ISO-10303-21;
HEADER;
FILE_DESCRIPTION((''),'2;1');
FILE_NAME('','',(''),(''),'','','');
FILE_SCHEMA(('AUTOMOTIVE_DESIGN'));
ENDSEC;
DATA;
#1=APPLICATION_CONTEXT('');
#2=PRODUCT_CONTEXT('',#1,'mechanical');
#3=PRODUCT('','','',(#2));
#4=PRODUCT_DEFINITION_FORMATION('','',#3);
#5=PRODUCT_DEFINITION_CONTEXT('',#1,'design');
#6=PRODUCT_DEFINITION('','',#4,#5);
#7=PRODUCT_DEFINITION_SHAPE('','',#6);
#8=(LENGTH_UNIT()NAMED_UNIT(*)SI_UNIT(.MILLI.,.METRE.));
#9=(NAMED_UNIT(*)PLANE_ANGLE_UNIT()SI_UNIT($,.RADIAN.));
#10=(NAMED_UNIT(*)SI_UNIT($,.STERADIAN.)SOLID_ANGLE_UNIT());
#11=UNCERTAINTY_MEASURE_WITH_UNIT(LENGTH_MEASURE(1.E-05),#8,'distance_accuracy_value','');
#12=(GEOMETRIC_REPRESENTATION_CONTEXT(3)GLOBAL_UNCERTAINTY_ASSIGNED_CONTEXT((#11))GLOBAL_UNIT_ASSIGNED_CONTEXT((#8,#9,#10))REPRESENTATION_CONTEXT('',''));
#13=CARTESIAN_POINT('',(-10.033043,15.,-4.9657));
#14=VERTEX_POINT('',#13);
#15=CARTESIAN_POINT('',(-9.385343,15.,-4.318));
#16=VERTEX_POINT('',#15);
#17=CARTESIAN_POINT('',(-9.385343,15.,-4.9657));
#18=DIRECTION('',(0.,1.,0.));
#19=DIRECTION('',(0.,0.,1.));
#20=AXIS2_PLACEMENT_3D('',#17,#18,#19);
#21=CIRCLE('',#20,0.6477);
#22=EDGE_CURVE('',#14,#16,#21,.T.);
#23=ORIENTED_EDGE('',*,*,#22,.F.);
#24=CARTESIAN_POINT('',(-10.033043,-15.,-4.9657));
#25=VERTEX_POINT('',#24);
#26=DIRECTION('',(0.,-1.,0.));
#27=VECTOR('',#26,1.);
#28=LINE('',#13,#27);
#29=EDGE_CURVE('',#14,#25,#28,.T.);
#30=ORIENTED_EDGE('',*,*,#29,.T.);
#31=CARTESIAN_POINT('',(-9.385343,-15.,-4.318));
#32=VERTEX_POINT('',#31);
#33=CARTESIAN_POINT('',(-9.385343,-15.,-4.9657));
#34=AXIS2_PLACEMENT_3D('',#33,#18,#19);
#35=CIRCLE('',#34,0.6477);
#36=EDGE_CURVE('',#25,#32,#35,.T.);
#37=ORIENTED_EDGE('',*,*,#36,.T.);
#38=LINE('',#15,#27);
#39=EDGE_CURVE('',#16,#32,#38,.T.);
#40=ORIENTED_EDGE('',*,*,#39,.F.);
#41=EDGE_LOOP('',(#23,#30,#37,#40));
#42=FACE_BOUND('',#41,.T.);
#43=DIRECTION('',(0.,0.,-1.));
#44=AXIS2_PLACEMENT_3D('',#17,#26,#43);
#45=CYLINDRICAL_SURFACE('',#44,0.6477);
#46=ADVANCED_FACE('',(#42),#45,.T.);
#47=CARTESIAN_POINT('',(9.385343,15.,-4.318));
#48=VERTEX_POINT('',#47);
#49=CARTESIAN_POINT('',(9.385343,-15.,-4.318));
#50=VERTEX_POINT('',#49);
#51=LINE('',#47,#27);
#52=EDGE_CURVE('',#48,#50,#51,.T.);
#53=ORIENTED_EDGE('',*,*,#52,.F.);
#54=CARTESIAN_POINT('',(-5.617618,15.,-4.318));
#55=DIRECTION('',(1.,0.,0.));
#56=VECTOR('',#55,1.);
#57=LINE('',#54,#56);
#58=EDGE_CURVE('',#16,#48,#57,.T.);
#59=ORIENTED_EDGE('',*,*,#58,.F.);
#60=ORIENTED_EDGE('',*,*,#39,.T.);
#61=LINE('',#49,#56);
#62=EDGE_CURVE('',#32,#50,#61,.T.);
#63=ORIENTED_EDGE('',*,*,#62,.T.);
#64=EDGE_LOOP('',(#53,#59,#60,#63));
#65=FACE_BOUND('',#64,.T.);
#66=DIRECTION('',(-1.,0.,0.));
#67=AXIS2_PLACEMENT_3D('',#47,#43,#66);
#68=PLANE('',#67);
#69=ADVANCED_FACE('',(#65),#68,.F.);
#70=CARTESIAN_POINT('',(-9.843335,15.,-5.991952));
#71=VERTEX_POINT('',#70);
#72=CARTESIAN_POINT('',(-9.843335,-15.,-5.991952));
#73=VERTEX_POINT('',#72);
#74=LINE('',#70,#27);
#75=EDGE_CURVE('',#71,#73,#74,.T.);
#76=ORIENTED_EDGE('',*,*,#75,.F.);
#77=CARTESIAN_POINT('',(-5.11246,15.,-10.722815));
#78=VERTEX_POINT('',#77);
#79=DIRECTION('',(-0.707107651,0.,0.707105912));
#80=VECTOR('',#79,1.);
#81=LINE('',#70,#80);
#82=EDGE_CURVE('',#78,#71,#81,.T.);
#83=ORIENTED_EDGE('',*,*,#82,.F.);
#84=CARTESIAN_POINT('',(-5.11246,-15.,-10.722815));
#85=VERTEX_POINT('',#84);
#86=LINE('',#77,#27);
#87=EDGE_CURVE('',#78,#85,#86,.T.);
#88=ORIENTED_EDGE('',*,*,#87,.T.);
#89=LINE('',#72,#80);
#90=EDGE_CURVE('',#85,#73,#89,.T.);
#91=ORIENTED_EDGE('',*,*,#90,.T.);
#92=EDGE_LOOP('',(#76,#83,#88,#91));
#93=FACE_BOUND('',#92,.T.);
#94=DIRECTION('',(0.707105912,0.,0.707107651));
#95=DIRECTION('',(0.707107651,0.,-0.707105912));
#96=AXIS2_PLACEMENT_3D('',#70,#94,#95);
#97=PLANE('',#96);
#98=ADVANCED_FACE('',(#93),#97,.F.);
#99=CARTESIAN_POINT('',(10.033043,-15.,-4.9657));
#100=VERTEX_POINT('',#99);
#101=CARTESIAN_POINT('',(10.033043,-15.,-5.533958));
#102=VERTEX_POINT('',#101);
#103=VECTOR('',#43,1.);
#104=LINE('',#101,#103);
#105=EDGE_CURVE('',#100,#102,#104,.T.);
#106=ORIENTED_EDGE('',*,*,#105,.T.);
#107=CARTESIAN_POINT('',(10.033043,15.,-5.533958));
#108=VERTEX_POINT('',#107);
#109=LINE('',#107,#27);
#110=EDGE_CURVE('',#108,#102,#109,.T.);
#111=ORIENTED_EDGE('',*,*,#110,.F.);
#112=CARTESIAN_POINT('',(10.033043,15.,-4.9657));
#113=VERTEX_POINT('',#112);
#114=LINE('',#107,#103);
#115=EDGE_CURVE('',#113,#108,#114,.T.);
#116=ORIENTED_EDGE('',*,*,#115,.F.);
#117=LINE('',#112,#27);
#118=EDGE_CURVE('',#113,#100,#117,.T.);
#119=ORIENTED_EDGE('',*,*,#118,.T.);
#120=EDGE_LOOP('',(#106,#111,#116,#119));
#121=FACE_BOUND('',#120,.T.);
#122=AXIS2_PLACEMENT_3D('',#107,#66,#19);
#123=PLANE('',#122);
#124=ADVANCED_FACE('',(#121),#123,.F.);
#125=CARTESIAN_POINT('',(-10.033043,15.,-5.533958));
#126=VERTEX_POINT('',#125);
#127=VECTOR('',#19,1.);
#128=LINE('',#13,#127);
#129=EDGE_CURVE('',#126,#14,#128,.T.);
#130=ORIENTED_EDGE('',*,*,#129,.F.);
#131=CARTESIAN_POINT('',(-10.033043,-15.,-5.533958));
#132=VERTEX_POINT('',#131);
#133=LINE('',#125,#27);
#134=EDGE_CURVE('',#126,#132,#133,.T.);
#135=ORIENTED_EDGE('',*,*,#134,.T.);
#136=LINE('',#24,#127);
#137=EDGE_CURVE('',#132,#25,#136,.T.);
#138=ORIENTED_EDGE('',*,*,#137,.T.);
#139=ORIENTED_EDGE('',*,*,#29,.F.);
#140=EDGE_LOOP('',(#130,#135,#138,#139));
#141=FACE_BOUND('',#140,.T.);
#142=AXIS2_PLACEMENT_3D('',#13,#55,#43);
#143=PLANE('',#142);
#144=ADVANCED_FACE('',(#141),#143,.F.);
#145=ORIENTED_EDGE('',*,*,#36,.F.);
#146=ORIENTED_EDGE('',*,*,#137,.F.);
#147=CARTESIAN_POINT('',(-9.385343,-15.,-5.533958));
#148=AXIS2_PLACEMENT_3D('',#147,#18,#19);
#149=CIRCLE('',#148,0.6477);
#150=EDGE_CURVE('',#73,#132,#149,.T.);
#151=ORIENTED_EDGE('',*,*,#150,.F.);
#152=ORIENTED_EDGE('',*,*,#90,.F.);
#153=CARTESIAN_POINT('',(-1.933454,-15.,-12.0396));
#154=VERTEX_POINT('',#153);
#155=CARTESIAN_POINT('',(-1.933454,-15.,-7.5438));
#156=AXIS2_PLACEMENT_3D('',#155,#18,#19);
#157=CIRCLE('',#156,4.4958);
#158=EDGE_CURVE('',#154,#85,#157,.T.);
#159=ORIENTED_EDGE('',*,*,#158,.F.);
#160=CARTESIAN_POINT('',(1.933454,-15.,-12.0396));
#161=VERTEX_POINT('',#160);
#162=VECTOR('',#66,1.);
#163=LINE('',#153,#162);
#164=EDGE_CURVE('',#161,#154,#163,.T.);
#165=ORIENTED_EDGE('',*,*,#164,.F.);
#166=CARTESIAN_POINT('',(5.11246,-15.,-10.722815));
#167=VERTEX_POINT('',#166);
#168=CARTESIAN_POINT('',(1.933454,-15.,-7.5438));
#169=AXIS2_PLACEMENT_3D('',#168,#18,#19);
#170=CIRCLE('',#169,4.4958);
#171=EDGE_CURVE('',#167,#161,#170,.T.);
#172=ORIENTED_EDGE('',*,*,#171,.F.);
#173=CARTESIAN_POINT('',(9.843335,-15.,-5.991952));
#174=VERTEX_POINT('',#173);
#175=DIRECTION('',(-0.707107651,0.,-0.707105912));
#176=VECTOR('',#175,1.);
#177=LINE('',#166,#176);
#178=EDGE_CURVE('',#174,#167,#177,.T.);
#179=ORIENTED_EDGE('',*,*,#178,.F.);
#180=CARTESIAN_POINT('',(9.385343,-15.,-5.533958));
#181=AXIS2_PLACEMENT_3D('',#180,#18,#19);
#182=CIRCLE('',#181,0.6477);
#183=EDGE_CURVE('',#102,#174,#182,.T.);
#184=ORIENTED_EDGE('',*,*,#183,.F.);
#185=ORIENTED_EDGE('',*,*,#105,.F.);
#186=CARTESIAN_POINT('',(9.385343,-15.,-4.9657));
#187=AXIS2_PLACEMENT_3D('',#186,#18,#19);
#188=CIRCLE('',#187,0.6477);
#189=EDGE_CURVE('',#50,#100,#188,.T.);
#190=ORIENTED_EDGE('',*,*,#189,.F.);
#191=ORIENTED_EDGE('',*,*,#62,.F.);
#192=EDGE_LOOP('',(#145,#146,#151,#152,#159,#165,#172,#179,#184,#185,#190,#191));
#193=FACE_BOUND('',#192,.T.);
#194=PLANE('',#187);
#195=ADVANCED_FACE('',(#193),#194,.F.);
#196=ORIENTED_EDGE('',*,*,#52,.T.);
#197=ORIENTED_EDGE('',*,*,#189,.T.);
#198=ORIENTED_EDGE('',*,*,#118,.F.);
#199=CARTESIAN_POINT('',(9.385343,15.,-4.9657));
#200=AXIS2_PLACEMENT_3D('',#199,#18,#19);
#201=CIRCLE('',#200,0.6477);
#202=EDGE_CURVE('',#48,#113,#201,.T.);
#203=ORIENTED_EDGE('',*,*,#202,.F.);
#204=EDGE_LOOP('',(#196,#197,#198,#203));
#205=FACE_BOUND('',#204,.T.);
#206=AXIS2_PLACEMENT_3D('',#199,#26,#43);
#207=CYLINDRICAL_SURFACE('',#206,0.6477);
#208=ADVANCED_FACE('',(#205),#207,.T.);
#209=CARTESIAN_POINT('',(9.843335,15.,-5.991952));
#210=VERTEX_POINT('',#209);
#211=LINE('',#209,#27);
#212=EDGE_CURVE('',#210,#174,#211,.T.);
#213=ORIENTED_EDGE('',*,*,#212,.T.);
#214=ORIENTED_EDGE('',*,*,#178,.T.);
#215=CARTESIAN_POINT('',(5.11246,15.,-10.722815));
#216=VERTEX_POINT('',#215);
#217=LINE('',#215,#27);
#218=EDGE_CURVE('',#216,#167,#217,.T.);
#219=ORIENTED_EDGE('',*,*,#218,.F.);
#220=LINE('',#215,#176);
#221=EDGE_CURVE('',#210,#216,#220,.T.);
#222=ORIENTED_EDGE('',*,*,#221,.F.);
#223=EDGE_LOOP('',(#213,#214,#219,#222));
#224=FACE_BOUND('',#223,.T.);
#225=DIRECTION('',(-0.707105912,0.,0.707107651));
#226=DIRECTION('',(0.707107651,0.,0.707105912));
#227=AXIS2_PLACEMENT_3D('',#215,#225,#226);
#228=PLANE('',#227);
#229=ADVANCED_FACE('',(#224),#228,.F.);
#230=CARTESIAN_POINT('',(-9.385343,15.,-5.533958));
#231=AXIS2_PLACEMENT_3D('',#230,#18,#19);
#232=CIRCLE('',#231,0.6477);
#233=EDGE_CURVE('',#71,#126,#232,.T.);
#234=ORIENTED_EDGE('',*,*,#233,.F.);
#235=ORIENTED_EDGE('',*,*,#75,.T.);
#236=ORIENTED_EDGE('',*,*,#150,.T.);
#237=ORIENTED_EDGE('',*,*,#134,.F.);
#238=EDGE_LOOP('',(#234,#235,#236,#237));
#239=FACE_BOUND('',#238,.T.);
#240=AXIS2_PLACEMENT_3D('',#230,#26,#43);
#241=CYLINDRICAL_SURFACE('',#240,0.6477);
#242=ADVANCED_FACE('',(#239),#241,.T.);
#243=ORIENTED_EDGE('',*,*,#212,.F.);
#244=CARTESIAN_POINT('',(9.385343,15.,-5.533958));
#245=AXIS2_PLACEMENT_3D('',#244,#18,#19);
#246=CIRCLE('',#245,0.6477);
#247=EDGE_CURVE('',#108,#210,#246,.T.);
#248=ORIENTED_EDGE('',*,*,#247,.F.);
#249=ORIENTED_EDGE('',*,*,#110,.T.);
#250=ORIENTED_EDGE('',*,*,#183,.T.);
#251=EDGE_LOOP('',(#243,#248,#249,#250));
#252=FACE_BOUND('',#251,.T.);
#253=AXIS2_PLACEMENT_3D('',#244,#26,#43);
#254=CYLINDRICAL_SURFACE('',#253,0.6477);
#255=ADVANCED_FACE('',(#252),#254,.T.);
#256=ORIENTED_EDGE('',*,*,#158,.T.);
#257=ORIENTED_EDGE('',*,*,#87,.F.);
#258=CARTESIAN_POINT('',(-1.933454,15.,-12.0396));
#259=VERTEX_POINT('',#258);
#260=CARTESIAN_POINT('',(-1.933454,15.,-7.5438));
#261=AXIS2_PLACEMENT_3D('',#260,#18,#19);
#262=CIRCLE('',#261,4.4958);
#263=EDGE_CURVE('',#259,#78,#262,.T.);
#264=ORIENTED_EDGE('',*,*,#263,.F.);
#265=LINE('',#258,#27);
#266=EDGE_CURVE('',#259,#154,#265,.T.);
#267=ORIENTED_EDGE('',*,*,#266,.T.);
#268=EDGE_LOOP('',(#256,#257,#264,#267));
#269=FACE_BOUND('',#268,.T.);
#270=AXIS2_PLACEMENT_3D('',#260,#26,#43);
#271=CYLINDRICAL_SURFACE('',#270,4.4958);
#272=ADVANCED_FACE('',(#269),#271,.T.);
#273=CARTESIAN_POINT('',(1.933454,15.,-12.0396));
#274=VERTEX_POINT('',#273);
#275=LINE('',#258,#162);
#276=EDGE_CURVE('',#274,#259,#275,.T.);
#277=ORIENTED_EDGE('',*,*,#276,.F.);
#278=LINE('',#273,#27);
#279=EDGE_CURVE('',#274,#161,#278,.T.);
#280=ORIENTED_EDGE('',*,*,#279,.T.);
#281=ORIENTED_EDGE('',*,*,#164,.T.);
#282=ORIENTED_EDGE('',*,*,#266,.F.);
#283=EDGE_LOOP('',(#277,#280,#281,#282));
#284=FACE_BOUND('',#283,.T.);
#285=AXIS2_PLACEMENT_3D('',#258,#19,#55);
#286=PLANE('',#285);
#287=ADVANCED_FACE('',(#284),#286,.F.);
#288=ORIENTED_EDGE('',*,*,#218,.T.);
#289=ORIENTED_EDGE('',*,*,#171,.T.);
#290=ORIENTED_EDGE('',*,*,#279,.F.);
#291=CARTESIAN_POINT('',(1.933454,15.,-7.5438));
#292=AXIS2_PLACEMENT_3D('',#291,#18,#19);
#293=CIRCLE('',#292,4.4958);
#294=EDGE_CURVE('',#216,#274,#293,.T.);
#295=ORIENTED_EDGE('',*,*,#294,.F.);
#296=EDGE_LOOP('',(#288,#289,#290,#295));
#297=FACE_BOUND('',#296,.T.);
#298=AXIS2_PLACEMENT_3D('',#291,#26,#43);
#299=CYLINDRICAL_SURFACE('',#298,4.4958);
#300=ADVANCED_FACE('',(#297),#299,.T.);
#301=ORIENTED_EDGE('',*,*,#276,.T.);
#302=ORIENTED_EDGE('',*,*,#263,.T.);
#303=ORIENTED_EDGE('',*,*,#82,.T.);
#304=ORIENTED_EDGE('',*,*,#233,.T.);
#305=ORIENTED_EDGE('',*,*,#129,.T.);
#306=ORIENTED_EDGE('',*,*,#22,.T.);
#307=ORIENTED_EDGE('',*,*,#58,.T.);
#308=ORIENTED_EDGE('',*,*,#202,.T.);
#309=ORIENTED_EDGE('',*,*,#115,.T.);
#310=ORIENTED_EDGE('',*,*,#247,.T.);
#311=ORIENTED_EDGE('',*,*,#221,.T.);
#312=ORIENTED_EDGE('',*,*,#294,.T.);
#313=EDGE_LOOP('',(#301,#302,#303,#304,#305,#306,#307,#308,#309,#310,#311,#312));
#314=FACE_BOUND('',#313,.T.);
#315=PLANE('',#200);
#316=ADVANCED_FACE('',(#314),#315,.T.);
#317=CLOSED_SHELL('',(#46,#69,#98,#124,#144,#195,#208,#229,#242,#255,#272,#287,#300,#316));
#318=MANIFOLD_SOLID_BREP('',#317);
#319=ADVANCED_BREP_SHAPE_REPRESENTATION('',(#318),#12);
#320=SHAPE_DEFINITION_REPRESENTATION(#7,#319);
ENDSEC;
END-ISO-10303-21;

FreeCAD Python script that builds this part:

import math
import FreeCAD as App
import Part
import Sketcher

V = App.Vector
Q = App.Units.Quantity

doc = App.newDocument("Part")
params = doc.addObject("Spreadsheet::Sheet", "Params")
for row, (alias, value) in enumerate([
    ("sketch1_radius", "0.177 in"),
    ("pad1_length", "30 mm"),
], start=1):
    params.set(f"A{row}", alias)
    params.set(f"B{row}", "=" + value)
    params.setAlias(f"B{row}", alias)

body = doc.addObject("PartDesign::Body", "Body")

sketch1 = body.newObject("Sketcher::SketchObject", "Sketch")
sketch1.AttachmentSupport = (doc.getObject("XZ_Plane"), [""])
sketch1.MapMode = "FlatFace"
sketch1.addGeometry([
    Part.ArcOfCircle(Part.Circle(V(9.39, -4.97, 0), V(0, 0, 1), 0.65), math.radians(0), math.radians(90)),
    Part.LineSegment(V(10.03, -4.97, 0), V(10.03, -5.53, 0)),
    Part.ArcOfCircle(Part.Circle(V(9.39, -5.53, 0), V(0, 0, 1), 0.65), math.radians(-45), math.radians(0)),
    Part.LineSegment(V(9.84, -5.99, 0), V(5.11, -10.72, 0)),
    Part.ArcOfCircle(Part.Circle(V(1.93, -7.54, 0), V(0, 0, 1), 4.5), math.radians(-90), math.radians(-45)),
    Part.LineSegment(V(1.93, -12.04, 0), V(-1.93, -12.04, 0)),
    Part.ArcOfCircle(Part.Circle(V(-1.93, -7.54, 0), V(0, 0, 1), 4.5), math.radians(-135), math.radians(-90)),
    Part.LineSegment(V(-5.11, -10.72, 0), V(-9.84, -5.99, 0)),
    Part.ArcOfCircle(Part.Circle(V(-9.39, -5.53, 0), V(0, 0, 1), 0.65), math.radians(180), math.radians(225)),
    Part.LineSegment(V(-10.03, -5.53, 0), V(-10.03, -4.97, 0)),
    Part.ArcOfCircle(Part.Circle(V(-9.39, -4.97, 0), V(0, 0, 1), 0.65), math.radians(90), math.radians(180)),
    Part.LineSegment(V(-9.39, -4.32, 0), V(9.39, -4.32, 0)),
], False)
sketch1.addConstraint([
    Sketcher.Constraint("Tangent", 0, 1, 1, 1),
    Sketcher.Constraint("Tangent", 1, 2, 2, 2),
    Sketcher.Constraint("Tangent", 2, 1, 3, 1),
    Sketcher.Constraint("Tangent", 3, 2, 4, 2),
    Sketcher.Constraint("Tangent", 4, 1, 5, 1),
    Sketcher.Constraint("Tangent", 5, 2, 6, 2),
    Sketcher.Constraint("Tangent", 6, 1, 7, 1),
    Sketcher.Constraint("Tangent", 7, 2, 8, 2),
    Sketcher.Constraint("Tangent", 8, 1, 9, 1),
    Sketcher.Constraint("Tangent", 9, 2, 10, 2),
    Sketcher.Constraint("Tangent", 10, 1, 11, 1),
    Sketcher.Constraint("Tangent", 11, 2, 0, 2),
    Sketcher.Constraint("Vertical", 1),
    Sketcher.Constraint("Horizontal", 5),
    Sketcher.Constraint("Vertical", 9),
    Sketcher.Constraint("Horizontal", 11),
    Sketcher.Constraint("Equal", 0, 2),
    Sketcher.Constraint("Equal", 4, 6),
    Sketcher.Constraint("Equal", 2, 8),
    Sketcher.Constraint("Equal", 8, 10),
    Sketcher.Constraint("Symmetric", 2, 3, 8, 3, -2),
    Sketcher.Constraint("Horizontal", 3, 2, 6, 1),
    Sketcher.Constraint("Radius", 4, Q("0.177 in")),
    Sketcher.Constraint("Radius", 0, Q("0.0255 in")),
    Sketcher.Constraint("DistanceY", 10, 1, -1, 1, Q("0.17 in")),
    Sketcher.Constraint("DistanceY", 4, 3, -1, 1, Q("0.297 in")),
    Sketcher.Constraint("Distance", 3, Q("6.690459 mm")),
    Sketcher.Constraint("DistanceX", 5, 2, 5, 1, Q("3.866907 mm")),
    Sketcher.Constraint("DistanceX", 11, 1, 11, 2, Q("18.770685 mm")),
])
sketch1.setExpression("Constraints[22]", "Params.sketch1_radius")
pad1 = body.newObject("PartDesign::Pad", "Pad")
pad1.Profile = sketch1
pad1.setExpression("Length", "Params.pad1_length")
pad1.Midplane = True

doc.recompute()
